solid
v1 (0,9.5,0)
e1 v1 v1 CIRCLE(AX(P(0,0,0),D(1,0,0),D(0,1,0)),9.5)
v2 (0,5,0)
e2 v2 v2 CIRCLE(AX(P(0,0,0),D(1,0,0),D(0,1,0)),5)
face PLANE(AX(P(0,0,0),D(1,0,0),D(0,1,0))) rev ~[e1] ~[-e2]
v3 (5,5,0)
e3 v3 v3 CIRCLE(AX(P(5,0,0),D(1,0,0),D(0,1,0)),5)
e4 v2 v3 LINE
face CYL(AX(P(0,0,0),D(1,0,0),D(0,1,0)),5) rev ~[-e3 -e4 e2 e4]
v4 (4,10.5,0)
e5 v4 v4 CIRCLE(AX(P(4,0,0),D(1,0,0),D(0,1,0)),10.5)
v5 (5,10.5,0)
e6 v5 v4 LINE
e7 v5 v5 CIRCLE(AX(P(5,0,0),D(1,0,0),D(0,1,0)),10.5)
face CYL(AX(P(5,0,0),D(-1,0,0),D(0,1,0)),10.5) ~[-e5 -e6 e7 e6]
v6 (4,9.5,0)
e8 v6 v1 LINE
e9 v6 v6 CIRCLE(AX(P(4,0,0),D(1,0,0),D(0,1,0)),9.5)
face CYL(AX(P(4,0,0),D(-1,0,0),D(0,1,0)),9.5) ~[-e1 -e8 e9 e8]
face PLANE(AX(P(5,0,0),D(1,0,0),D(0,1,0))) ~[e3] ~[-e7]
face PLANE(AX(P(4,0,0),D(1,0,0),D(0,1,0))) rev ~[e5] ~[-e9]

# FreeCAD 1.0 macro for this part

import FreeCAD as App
import Part
import Sketcher

V = App.Vector
Q = App.Units.Quantity


def add_polygon(sketch, points):
    """Adds a closed chain of lines whose ends are joined by coincident constraints."""
    first, n = sketch.GeometryCount, len(points)
    for a, b in zip(points, points[1:] + points[:1]):
        sketch.addGeometry(Part.LineSegment(App.Vector(*a, 0), App.Vector(*b, 0)), False)
    for i in range(n):
        sketch.addConstraint(Sketcher.Constraint("Coincident", first + i, 2, first + (i + 1) % n, 1))

doc = App.newDocument("Part")
params = doc.addObject("Spreadsheet::Sheet", "Params")
for row, (alias, value) in enumerate([
    ("sketch1_width", "5 mm"),
    ("sketch1_width2", "1 mm"),
    ("revolution_angle", "360 deg"),
], start=1):
    params.set(f"A{row}", alias)
    params.set(f"B{row}", "=" + value)
    params.setAlias(f"B{row}", alias)

body = doc.addObject("PartDesign::Body", "Body")

# Sketch on XY plane
sketch1 = body.newObject("Sketcher::SketchObject", "Sketch")
sketch1.AttachmentSupport = (doc.getObject("XY_Plane"), [""])
sketch1.MapMode = "FlatFace"
add_polygon(sketch1, [(4, 9.5), (0, 9.5), (0, 5), (5, 5), (5, 10.5), (4, 10.5)])  # lines 0-5
sketch1.addConstraint([
    Sketcher.Constraint("Horizontal", 0),
    Sketcher.Constraint("Vertical", 1),
    Sketcher.Constraint("Horizontal", 2),
    Sketcher.Constraint("Vertical", 3),
    Sketcher.Constraint("Horizontal", 4),
    Sketcher.Constraint("Vertical", 5),
    Sketcher.Constraint("PointOnObject", 0, 2, -2),
    Sketcher.Constraint("Equal", 4, 5),
    Sketcher.Constraint("DistanceX", 2, 1, 2, 2, Q("5 mm")),
    Sketcher.Constraint("DistanceX", 4, 2, 4, 1, Q("1 mm")),
    Sketcher.Constraint("DistanceY", -1, 1, 1, 2, Q("5 mm")),
    Sketcher.Constraint("DistanceY", -1, 1, 0, 2, Q("9.5 mm")),
])
sketch1.setExpression("Constraints[14]", "Params.sketch1_width")
sketch1.setExpression("Constraints[15]", "Params.sketch1_width2")
revolution = body.newObject("PartDesign::Revolution", "Revolution")
revolution.Profile = sketch1
revolution.ReferenceAxis = (sketch1, ["H_Axis"])
revolution.setExpression("Angle", "Params.revolution_angle")

doc.recompute()
